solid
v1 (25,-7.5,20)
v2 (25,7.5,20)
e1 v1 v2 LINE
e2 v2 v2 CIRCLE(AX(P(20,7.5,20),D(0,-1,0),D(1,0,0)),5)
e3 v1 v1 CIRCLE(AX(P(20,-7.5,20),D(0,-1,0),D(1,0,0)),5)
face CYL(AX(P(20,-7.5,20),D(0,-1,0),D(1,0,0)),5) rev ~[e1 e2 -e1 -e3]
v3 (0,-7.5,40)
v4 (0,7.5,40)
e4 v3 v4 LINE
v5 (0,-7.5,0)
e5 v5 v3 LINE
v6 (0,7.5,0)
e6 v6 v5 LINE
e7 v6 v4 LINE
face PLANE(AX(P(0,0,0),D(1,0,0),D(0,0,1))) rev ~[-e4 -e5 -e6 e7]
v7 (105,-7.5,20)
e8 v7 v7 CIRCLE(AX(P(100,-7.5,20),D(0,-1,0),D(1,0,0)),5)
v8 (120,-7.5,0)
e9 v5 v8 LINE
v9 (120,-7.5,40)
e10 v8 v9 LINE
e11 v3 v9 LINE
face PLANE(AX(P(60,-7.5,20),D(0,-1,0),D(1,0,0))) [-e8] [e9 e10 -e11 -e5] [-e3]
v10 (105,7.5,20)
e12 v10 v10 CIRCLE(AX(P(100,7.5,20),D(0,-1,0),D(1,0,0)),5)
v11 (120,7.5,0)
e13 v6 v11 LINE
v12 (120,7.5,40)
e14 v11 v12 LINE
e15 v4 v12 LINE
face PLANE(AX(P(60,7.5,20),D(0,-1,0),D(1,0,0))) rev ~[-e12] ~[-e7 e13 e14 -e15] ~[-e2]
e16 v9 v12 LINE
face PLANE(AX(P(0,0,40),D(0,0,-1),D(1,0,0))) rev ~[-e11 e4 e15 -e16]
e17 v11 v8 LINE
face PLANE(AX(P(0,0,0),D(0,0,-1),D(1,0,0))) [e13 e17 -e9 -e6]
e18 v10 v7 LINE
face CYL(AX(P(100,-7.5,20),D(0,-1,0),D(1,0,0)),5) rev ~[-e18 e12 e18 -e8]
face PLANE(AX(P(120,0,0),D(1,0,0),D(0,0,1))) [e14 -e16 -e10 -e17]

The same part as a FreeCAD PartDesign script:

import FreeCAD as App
import Part
import Sketcher

V = App.Vector


def add_polygon(sketch, points):
    """Adds a closed chain of lines whose ends are joined by coincident constraints."""
    first, n = sketch.GeometryCount, len(points)
    for a, b in zip(points, points[1:] + points[:1]):
        sketch.addGeometry(Part.LineSegment(App.Vector(*a, 0), App.Vector(*b, 0)), False)
    for i in range(n):
        sketch.addConstraint(Sketcher.Constraint("Coincident", first + i, 2, first + (i + 1) % n, 1))

doc = App.newDocument("Part")
body = doc.addObject("PartDesign::Body", "Body")

# Sketch on XZ plane
sketch1 = body.newObject("Sketcher::SketchObject", "Sketch")
sketch1.AttachmentSupport = (doc.getObject("XZ_Plane"), [""])
sketch1.MapMode = "FlatFace"
add_polygon(sketch1, [(0, 40), (0, 0), (120, 0), (120, 40)])  # lines 0-3
sketch1.addConstraint(Sketcher.Constraint("Vertical", 0))
sketch1.addConstraint(Sketcher.Constraint("Horizontal", 1))
sketch1.addConstraint(Sketcher.Constraint("Vertical", 2))
sketch1.addConstraint(Sketcher.Constraint("Horizontal", 3))
sketch1.addConstraint(Sketcher.Constraint("Coincident", 0, 2, -1, 1))
sketch1.addConstraint(Sketcher.Constraint("DistanceX", 1, 1, 1, 2, 120.0))
sketch1.addConstraint(Sketcher.Constraint("DistanceY", 0, 2, 0, 1, 40.0))
pad1 = body.newObject("PartDesign::Pad", "Pad")
pad1.Profile = sketch1
pad1.Length = 15
pad1.Midplane = True

# Sketch on XZ plane
sketch2 = body.newObject("Sketcher::SketchObject", "Sketch001")
sketch2.AttachmentSupport = (doc.getObject("XZ_Plane"), [""])
sketch2.MapMode = "FlatFace"
sketch2.AttachmentOffset = App.Placement(V(0, 0, 7.5), App.Rotation())
sketch2.addGeometry(Part.Circle(V(20, 20, 0), V(0, 0, 1), 5), False)
sketch2.addGeometry(Part.Circle(V(100, 20, 0), V(0, 0, 1), 5), False)
sketch2.addConstraint(Sketcher.Constraint("Equal", 0, 1))
sketch2.addConstraint(Sketcher.Constraint("Horizontal", 0, 3, 1, 3))
sketch2.addConstraint(Sketcher.Constraint("Diameter", 0, 10.0))
sketch2.addConstraint(Sketcher.Constraint("DistanceX", -1, 1, 0, 3, 20.0))
sketch2.addConstraint(Sketcher.Constraint("DistanceY", -1, 1, 0, 3, 20.0))
sketch2.addConstraint(Sketcher.Constraint("DistanceX", -1, 1, 1, 3, 100.0))
pocket1 = body.newObject("PartDesign::Pocket", "Pocket")
pocket1.Profile = sketch2
pocket1.Length = 50
pocket1.Midplane = True

doc.recompute()
